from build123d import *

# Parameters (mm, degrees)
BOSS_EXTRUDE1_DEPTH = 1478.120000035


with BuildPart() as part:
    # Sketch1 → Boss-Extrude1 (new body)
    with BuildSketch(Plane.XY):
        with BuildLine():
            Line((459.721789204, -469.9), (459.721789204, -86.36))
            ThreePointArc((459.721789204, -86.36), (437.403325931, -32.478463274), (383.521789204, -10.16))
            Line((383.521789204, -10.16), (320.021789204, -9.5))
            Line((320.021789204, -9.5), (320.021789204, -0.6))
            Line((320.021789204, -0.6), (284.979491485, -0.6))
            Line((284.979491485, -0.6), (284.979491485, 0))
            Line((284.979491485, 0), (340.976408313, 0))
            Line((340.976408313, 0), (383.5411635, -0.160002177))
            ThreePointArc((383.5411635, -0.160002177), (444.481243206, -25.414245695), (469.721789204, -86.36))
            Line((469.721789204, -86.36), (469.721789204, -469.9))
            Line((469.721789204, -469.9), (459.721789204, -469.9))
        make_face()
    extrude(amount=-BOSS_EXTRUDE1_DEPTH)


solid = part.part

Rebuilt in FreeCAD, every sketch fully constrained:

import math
import FreeCAD as App
import Part
import Sketcher

V = App.Vector
Q = App.Units.Quantity

doc = App.newDocument("Part")
params = doc.addObject("Spreadsheet::Sheet", "Params")
for row, (alias, value) in enumerate([
    ("sketch1_radius", "86.2 mm"),
    ("sketch1_radius2", "76.2 mm"),
    ("sketch1_height", "0.6 mm"),
    ("sketch1_height2", "8.9 mm"),
    ("sketch1_height3", "383.54 mm"),
    ("pad1_length", "1478.12 mm"),
], start=1):
    params.set(f"A{row}", alias)
    params.set(f"B{row}", "=" + value)
    params.setAlias(f"B{row}", alias)

body = doc.addObject("PartDesign::Body", "Body")

sketch1 = body.newObject("Sketcher::SketchObject", "Sketch")
sketch1.AttachmentSupport = (doc.getObject("XY_Plane"), [""])
sketch1.MapMode = "FlatFace"
sketch1.addGeometry([
    Part.LineSegment(V(459.7, -86.4, 0), V(459.7, -469.9, 0)),
    Part.LineSegment(V(459.7, -469.9, 0), V(469.7, -469.9, 0)),
    Part.LineSegment(V(469.7, -469.9, 0), V(469.7, -86.4, 0)),
    Part.ArcOfCircle(Part.Circle(V(383.5, -86.4, 0), V(0, 0, 1), 86.2), math.radians(0), math.radians(90)),
    Part.LineSegment(V(383.5, -0.2, 0), V(341, 0, 0)),
    Part.LineSegment(V(341, 0, 0), V(285, 0, 0)),
    Part.LineSegment(V(285, 0, 0), V(285, -0.6, 0)),
    Part.LineSegment(V(285, -0.6, 0), V(320, -0.6, 0)),
    Part.LineSegment(V(320, -0.6, 0), V(320, -9.5, 0)),
    Part.LineSegment(V(320, -9.5, 0), V(383.5, -10.2, 0)),
    Part.ArcOfCircle(Part.Circle(V(383.5, -86.4, 0), V(0, 0, 1), 76.2), math.radians(0), math.radians(90)),
], False)
sketch1.addConstraint([
    Sketcher.Constraint("Coincident", 0, 2, 1, 1),
    Sketcher.Constraint("Coincident", 1, 2, 2, 1),
    Sketcher.Constraint("Tangent", 2, 2, 3, 1),
    Sketcher.Constraint("Coincident", 3, 2, 4, 1),
    Sketcher.Constraint("Coincident", 4, 2, 5, 1),
    Sketcher.Constraint("Coincident", 5, 2, 6, 1),
    Sketcher.Constraint("Coincident", 6, 2, 7, 1),
    Sketcher.Constraint("Coincident", 7, 2, 8, 1),
    Sketcher.Constraint("Coincident", 8, 2, 9, 1),
    Sketcher.Constraint("Coincident", 9, 2, 10, 2),
    Sketcher.Constraint("Tangent", 10, 1, 0, 1),
    Sketcher.Constraint("Vertical", 0),
    Sketcher.Constraint("Horizontal", 1),
    Sketcher.Constraint("Vertical", 2),
    Sketcher.Constraint("Horizontal", 5),
    Sketcher.Constraint("Vertical", 6),
    Sketcher.Constraint("Horizontal", 7),
    Sketcher.Constraint("Vertical", 8),
    Sketcher.Constraint("Coincident", 10, 3, 3, 3),
    Sketcher.Constraint("PointOnObject", 4, 2, -1),
    Sketcher.Constraint("Vertical", 10, 3, 9, 2),
    Sketcher.Constraint("Radius", 3, Q("86.2 mm")),
    Sketcher.Constraint("Radius", 10, Q("76.2 mm")),
    Sketcher.Constraint("DistanceY", 6, 2, 6, 1, Q("0.6 mm")),
    Sketcher.Constraint("DistanceY", 8, 2, 8, 1, Q("8.9 mm")),
    Sketcher.Constraint("DistanceY", 0, 2, 0, 1, Q("383.54 mm")),
    Sketcher.Constraint("DistanceY", 0, 2, -1, 1, Q("469.9 mm")),
    Sketcher.Constraint("DistanceX", 7, 2, 3, 3, Q("63.5 mm")),
    Sketcher.Constraint("DistanceX", 5, 2, 5, 1, Q("55.996917 mm")),
    Sketcher.Constraint("DistanceX", 7, 1, 7, 2, Q("35.042298 mm")),
    Sketcher.Constraint("DistanceX", -1, 1, 3, 3, Q("383.521789 mm")),
    Sketcher.Constraint("Distance", 4, Q("42.565056 mm")),
])
sketch1.setExpression("Constraints[21]", "Params.sketch1_radius")
sketch1.setExpression("Constraints[22]", "Params.sketch1_radius2")
sketch1.setExpression("Constraints[23]", "Params.sketch1_height")
sketch1.setExpression("Constraints[24]", "Params.sketch1_height2")
sketch1.setExpression("Constraints[25]", "Params.sketch1_height3")
pad1 = body.newObject("PartDesign::Pad", "Pad")
pad1.Profile = sketch1
pad1.setExpression("Length", "Params.pad1_length")
pad1.Reversed = True

doc.recompute()
